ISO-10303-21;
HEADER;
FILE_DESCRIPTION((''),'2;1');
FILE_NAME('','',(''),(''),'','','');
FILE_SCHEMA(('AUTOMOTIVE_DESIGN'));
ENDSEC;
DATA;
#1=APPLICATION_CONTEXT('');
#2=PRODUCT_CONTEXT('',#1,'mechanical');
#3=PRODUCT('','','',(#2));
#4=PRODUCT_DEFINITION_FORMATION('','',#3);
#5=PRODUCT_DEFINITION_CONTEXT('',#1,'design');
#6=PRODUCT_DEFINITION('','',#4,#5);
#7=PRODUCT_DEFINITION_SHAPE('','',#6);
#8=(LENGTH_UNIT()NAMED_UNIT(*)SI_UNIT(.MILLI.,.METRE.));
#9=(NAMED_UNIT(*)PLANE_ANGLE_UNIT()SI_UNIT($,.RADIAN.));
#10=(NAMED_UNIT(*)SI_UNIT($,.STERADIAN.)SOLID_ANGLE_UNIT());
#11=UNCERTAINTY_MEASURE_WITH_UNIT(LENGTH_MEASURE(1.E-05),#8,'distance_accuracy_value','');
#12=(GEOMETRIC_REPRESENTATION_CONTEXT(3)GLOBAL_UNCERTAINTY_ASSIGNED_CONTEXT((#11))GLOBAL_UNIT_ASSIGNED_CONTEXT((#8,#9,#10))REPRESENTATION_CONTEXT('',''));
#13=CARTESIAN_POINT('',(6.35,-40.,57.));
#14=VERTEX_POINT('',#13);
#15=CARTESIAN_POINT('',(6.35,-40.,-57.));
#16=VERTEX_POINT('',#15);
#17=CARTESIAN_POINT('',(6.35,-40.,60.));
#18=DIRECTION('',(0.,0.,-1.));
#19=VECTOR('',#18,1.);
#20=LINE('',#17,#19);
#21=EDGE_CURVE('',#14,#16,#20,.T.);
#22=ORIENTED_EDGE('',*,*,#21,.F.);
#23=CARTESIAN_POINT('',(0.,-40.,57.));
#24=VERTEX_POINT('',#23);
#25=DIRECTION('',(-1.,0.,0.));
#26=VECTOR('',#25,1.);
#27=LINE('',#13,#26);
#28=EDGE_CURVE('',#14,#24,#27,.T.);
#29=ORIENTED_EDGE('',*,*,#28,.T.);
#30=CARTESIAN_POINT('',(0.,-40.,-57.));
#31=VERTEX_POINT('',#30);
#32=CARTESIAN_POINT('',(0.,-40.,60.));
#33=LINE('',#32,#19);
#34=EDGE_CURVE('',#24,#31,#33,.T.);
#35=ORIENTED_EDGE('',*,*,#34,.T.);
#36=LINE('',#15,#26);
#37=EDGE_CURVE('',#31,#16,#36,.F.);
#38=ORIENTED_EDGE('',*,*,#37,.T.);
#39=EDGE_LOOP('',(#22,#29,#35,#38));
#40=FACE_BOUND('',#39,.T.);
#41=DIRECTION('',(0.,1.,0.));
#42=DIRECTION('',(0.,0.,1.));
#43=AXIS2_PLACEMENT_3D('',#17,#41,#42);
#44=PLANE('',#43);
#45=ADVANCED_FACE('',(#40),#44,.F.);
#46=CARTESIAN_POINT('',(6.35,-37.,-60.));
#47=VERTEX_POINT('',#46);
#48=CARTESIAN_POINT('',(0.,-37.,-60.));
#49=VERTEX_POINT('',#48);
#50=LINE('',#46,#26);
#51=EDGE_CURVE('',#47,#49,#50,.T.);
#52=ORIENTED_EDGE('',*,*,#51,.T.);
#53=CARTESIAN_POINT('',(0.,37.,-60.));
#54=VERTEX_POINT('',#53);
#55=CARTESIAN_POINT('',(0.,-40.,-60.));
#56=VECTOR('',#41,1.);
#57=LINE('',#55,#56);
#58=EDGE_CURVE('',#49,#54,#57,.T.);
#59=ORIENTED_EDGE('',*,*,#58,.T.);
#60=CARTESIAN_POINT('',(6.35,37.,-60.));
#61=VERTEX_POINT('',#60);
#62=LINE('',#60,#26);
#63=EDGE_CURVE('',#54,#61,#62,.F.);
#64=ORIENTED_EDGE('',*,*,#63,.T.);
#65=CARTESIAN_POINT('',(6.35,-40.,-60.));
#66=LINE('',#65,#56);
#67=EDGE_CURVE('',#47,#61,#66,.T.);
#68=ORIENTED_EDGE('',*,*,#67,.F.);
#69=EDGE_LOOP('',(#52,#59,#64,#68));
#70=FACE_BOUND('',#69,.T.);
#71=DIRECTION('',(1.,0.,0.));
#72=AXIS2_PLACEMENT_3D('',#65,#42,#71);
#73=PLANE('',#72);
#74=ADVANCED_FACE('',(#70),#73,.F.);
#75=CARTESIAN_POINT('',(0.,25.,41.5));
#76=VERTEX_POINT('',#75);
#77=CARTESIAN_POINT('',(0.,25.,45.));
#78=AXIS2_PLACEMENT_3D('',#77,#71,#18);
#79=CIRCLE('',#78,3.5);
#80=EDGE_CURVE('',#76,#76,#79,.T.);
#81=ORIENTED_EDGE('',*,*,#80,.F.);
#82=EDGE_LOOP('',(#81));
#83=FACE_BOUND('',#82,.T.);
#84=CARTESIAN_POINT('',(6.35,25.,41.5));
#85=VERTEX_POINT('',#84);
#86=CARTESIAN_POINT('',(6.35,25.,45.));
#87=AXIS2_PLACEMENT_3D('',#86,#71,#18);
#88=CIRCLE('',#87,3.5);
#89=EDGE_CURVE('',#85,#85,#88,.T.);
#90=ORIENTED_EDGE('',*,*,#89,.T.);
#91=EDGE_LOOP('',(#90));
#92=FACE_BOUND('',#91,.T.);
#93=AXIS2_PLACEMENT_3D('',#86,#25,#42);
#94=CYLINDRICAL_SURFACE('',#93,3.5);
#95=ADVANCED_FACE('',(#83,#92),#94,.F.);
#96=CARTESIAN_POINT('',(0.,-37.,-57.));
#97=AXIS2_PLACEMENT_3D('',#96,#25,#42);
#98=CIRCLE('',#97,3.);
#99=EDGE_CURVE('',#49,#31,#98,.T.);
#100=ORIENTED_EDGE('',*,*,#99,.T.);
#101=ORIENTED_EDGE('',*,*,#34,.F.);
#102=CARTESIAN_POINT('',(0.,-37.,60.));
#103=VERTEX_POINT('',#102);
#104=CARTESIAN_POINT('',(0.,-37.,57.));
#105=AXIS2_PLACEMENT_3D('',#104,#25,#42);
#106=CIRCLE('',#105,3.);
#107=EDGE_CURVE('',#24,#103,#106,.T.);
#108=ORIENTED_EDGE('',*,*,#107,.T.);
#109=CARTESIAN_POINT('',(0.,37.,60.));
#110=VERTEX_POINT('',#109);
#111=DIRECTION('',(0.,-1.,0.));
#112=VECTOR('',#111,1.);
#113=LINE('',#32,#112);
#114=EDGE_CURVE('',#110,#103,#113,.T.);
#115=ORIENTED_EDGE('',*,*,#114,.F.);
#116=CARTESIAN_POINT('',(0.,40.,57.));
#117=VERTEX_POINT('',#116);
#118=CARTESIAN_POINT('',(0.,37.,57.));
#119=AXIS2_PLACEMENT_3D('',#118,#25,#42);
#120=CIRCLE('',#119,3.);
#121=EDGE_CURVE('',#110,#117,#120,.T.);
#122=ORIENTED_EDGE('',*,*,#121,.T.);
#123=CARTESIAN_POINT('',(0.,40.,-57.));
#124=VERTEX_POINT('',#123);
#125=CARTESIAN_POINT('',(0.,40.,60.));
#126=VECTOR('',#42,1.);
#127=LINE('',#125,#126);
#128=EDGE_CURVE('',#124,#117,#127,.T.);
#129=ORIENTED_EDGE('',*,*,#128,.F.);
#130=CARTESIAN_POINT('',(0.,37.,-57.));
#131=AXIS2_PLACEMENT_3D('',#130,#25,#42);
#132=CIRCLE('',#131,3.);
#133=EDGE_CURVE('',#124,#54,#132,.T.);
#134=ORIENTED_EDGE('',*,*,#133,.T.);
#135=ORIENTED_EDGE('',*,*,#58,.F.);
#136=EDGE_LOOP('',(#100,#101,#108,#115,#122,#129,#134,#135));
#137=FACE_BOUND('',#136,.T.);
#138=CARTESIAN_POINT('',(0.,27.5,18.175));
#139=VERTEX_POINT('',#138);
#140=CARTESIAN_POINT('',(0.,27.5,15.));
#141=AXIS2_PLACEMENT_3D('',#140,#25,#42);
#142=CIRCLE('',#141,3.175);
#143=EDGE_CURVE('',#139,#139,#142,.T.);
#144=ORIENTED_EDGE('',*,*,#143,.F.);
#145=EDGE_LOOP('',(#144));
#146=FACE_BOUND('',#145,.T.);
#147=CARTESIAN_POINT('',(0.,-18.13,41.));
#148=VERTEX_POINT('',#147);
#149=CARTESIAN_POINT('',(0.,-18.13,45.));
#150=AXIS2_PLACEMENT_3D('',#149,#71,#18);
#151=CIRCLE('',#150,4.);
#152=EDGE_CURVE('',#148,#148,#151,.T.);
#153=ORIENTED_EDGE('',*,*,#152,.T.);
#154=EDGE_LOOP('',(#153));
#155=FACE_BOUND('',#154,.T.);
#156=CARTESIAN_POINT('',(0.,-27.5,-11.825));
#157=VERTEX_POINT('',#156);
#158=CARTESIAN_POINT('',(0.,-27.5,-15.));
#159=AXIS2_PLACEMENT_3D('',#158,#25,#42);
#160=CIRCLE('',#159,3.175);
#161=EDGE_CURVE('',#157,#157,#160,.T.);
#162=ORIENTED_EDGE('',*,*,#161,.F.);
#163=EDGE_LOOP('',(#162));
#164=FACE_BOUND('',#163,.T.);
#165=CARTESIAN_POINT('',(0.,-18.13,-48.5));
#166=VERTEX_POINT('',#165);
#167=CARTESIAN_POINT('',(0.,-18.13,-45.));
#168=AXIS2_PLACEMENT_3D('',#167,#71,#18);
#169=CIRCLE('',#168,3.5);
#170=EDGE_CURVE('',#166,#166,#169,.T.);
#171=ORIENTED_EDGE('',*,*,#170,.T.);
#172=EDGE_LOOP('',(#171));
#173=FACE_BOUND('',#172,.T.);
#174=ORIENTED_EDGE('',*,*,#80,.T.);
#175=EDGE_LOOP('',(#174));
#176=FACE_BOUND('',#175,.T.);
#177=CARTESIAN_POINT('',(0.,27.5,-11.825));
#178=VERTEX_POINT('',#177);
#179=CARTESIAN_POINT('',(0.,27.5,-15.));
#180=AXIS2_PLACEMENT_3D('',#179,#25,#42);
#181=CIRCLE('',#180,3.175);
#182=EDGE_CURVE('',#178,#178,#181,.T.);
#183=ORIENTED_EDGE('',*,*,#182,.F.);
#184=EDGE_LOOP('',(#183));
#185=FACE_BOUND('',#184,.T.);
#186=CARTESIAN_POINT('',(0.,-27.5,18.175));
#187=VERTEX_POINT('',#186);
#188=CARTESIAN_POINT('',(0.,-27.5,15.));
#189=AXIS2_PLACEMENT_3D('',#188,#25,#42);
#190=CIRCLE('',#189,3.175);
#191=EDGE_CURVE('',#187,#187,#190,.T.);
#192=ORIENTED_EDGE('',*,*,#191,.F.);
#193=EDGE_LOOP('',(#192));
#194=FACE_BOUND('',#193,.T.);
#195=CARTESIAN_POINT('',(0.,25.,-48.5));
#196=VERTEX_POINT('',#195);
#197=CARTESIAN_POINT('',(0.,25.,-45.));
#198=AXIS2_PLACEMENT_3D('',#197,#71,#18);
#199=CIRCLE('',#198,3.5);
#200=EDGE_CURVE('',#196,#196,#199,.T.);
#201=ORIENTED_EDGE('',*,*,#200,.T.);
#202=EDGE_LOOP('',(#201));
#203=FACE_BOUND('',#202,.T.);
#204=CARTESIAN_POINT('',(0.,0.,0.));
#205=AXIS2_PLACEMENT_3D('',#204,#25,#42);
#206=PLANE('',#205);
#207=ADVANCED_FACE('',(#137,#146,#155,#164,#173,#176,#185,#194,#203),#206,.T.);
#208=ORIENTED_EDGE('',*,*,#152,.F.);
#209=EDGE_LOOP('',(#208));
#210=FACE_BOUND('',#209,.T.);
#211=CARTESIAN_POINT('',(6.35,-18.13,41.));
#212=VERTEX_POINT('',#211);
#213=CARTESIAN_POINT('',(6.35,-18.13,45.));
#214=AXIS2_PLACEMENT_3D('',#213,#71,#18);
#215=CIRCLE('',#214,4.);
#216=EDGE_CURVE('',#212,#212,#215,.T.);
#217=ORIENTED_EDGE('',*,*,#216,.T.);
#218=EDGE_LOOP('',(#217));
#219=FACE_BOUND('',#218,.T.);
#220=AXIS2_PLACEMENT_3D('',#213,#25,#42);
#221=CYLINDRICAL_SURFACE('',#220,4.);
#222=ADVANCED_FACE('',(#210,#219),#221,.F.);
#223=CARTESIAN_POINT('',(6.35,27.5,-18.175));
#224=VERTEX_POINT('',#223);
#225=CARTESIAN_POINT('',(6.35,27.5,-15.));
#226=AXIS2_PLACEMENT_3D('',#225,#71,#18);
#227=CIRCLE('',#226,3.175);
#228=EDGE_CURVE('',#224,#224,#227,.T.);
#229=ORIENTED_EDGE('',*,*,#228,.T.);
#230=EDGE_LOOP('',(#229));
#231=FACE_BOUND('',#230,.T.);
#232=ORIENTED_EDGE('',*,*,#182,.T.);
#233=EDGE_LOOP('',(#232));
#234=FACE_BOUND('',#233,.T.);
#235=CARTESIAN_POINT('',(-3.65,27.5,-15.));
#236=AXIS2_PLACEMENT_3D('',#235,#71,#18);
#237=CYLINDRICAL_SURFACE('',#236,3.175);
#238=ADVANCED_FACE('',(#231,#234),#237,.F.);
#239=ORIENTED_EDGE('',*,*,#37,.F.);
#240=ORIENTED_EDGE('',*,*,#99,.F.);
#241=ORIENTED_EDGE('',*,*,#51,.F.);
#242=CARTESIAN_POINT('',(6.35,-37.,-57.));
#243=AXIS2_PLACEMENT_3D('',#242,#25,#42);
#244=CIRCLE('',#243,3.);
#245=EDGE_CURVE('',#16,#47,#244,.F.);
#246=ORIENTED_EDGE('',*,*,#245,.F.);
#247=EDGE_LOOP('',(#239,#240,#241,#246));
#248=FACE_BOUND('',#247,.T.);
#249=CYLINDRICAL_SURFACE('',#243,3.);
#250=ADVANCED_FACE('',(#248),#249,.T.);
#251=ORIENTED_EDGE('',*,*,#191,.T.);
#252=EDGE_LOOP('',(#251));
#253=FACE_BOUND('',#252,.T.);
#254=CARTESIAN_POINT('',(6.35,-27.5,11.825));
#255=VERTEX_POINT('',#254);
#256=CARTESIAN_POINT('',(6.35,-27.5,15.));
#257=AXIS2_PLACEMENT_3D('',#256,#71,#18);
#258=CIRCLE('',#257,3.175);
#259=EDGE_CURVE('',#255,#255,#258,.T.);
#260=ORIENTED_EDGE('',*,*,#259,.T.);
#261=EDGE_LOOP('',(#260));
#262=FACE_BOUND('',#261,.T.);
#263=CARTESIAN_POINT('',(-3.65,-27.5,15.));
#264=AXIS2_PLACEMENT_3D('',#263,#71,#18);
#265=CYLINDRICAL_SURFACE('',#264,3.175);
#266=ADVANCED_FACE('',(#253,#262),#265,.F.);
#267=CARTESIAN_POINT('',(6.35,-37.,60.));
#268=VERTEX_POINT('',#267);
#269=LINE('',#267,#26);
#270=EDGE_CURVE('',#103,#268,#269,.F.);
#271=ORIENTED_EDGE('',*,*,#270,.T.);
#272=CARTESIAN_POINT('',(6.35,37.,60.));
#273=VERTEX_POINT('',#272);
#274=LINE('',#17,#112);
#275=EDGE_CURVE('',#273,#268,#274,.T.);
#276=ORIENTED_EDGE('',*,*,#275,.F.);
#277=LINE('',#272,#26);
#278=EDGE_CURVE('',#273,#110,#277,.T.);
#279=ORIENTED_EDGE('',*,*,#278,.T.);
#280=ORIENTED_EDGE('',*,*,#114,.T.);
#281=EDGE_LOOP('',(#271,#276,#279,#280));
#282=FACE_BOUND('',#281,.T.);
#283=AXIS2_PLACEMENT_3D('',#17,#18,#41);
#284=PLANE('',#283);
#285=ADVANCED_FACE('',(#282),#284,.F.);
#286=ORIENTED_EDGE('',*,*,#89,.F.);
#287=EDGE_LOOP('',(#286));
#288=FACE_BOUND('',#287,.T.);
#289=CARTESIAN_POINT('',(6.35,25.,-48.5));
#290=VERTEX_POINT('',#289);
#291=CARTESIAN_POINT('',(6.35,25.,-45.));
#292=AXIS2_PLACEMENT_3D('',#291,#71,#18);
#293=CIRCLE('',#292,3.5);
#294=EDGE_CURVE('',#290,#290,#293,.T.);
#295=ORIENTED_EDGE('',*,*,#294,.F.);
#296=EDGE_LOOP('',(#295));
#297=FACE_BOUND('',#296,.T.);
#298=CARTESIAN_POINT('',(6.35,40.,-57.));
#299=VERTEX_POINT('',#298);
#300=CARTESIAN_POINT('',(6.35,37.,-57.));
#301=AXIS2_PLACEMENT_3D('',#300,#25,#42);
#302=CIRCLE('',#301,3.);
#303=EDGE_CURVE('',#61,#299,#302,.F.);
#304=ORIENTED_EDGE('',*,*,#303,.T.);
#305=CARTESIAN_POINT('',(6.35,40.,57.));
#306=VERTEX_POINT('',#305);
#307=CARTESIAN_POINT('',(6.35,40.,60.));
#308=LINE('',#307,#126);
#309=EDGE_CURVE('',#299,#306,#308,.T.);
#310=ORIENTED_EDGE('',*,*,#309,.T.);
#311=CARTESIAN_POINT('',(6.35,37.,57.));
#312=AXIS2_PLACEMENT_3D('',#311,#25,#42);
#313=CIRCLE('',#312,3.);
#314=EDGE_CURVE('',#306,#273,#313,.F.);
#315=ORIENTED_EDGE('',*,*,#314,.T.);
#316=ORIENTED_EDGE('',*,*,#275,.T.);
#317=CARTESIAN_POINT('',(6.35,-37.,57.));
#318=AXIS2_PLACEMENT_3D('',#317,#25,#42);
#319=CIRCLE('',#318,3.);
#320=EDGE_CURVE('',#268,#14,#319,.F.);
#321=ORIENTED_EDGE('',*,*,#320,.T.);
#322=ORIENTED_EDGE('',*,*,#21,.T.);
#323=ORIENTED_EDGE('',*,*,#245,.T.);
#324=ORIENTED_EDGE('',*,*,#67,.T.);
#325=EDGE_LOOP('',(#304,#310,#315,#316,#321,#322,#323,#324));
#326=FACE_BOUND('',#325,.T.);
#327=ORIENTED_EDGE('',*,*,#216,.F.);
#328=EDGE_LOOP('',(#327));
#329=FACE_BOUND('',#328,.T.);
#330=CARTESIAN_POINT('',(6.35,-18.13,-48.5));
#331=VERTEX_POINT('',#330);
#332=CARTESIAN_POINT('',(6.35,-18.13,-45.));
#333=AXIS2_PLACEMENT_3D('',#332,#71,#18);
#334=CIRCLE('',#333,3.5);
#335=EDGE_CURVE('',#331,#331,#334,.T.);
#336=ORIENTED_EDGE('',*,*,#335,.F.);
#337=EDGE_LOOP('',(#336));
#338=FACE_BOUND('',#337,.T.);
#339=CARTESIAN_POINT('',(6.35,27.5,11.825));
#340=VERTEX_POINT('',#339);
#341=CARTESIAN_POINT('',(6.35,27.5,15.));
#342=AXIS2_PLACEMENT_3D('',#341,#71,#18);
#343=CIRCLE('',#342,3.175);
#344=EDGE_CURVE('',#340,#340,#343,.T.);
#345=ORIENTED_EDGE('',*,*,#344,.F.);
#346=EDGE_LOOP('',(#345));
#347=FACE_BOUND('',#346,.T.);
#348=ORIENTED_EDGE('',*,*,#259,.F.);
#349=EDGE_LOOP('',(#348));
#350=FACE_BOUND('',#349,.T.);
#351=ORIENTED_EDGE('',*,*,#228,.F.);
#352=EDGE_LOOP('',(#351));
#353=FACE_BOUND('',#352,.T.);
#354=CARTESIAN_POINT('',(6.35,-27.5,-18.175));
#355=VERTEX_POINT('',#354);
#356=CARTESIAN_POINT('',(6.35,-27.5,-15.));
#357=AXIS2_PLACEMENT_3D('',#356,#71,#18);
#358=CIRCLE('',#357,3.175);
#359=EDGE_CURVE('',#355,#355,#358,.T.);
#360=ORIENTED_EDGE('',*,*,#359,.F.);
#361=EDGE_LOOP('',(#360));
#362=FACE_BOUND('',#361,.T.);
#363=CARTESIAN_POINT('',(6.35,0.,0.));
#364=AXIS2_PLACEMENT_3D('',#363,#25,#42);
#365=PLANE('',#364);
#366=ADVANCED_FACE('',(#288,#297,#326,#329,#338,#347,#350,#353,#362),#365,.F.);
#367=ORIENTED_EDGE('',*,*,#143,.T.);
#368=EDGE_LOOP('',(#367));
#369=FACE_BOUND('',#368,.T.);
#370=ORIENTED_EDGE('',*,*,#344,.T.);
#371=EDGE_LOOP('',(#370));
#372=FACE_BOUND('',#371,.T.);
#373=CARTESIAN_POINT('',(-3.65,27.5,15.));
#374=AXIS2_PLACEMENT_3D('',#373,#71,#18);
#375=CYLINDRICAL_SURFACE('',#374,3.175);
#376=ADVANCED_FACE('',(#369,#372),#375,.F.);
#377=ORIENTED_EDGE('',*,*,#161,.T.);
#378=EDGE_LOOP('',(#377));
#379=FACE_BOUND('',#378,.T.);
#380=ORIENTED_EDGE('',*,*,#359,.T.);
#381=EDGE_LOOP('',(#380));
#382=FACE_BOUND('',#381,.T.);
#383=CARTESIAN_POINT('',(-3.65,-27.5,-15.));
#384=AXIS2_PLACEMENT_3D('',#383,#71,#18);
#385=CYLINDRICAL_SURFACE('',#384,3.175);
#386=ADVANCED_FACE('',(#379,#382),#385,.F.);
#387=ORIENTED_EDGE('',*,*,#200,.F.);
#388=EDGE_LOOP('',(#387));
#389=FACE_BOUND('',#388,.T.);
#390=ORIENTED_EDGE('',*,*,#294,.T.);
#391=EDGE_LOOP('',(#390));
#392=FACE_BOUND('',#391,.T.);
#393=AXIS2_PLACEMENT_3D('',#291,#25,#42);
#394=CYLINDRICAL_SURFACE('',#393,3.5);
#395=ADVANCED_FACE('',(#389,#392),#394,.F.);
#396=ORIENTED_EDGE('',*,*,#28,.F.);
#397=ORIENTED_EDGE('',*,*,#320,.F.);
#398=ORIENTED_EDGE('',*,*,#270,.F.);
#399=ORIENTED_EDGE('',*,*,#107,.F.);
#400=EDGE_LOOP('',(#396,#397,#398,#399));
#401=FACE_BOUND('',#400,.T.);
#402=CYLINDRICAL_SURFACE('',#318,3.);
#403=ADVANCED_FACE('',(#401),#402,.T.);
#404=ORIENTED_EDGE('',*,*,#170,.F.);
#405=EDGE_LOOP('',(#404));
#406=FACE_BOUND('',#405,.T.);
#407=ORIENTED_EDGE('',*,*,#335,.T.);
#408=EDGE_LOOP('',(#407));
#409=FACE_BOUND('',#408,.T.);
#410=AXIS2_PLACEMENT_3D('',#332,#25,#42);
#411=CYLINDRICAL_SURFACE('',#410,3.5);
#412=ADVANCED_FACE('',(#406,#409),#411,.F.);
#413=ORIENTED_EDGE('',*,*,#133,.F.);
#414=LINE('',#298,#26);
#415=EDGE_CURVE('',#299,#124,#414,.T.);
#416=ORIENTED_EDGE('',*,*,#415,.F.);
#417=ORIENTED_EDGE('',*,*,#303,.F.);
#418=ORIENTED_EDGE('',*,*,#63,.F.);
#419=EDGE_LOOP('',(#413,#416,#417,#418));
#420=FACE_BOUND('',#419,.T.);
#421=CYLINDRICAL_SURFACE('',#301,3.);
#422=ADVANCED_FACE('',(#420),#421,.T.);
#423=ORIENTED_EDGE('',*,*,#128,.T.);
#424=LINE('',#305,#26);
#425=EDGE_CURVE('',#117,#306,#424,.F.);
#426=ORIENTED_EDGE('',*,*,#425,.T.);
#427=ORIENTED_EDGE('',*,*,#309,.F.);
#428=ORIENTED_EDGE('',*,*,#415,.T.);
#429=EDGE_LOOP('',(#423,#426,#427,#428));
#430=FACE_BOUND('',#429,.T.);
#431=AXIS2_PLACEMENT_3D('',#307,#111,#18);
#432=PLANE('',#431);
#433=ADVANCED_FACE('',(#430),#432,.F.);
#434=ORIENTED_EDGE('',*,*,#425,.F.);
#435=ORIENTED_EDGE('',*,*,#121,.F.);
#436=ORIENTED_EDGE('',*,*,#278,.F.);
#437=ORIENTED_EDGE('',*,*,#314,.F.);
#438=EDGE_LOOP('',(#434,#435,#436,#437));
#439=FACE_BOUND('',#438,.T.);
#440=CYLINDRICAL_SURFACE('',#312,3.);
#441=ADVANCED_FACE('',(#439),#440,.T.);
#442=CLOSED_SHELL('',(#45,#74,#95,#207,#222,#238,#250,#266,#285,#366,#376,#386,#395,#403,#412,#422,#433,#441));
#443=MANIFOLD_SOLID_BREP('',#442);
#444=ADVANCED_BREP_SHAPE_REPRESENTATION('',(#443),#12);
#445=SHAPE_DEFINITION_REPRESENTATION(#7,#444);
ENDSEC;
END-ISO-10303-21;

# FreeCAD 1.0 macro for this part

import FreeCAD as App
import Part
import Sketcher

V = App.Vector
Q = App.Units.Quantity


def edges_at(feature, points):
    """Names of the edges that pass closest to the given points."""
    edges = feature.Shape.Edges
    near = lambda p: min(range(len(edges)), key=lambda i: edges[i].distToShape(Part.Vertex(*p))[0])
    return sorted({f"Edge{near(p) + 1}" for p in points})

doc = App.newDocument("Part")
params = doc.addObject("Spreadsheet::Sheet", "Params")
for row, (alias, value) in enumerate([
    ("sketch1_diameter", "8 mm"),
    ("sketch1_diameter2", "7 mm"),
    ("sketch1_width", "80 mm"),
    ("sketch1_height", "120 mm"),
    ("pad1_length", "6.35 mm"),
    ("fillet_radius", "3 mm"),
    ("sketch2_diameter", "6.35 mm"),
    ("pocket1_length", "10 mm"),
], start=1):
    params.set(f"A{row}", alias)
    params.set(f"B{row}", "=" + value)
    params.setAlias(f"B{row}", alias)

body = doc.addObject("PartDesign::Body", "Body")

# Sketch on YZ plane
sketch1 = body.newObject("Sketcher::SketchObject", "Sketch")
sketch1.AttachmentSupport = (doc.getObject("YZ_Plane"), [""])
sketch1.MapMode = "FlatFace"
sketch1.addGeometry(Part.LineSegment(V(40, 60, 0), V(-40, 60, 0)), False)
sketch1.addGeometry(Part.LineSegment(V(-40, 60, 0), V(-40, -60, 0)), False)
sketch1.addGeometry(Part.LineSegment(V(-40, -60, 0), V(40, -60, 0)), False)
sketch1.addGeometry(Part.LineSegment(V(40, -60, 0), V(40, 60, 0)), False)
sketch1.addGeometry(Part.Circle(V(-18.1, 45, 0), V(0, 0, 1), 4), False)
sketch1.addGeometry(Part.Circle(V(-18.1, -45, 0), V(0, 0, 1), 3.5), False)
sketch1.addGeometry(Part.Circle(V(25, 45, 0), V(0, 0, 1), 3.5), False)
sketch1.addGeometry(Part.Circle(V(25, -45, 0), V(0, 0, 1), 3.5), False)
sketch1.addConstraint(Sketcher.Constraint("Coincident", 0, 2, 1, 1))
sketch1.addConstraint(Sketcher.Constraint("Coincident", 1, 2, 2, 1))
sketch1.addConstraint(Sketcher.Constraint("Coincident", 2, 2, 3, 1))
sketch1.addConstraint(Sketcher.Constraint("Coincident", 3, 2, 0, 1))
sketch1.addConstraint(Sketcher.Constraint("Horizontal", 0))
sketch1.addConstraint(Sketcher.Constraint("Vertical", 1))
sketch1.addConstraint(Sketcher.Constraint("Horizontal", 2))
sketch1.addConstraint(Sketcher.Constraint("Vertical", 3))
sketch1.addConstraint(Sketcher.Constraint("Equal", 5, 6))
sketch1.addConstraint(Sketcher.Constraint("Equal", 6, 7))
sketch1.addConstraint(Sketcher.Constraint("Symmetric", 0, 2, 2, 2, -1, 1))
sketch1.addConstraint(Sketcher.Constraint("Symmetric", 4, 3, 5, 3, -1))
sketch1.addConstraint(Sketcher.Constraint("Symmetric", 6, 3, 7, 3, -1))
sketch1.addConstraint(Sketcher.Constraint("Horizontal", 4, 3, 6, 3))
sketch1.addConstraint(Sketcher.Constraint("Diameter", 4, Q("8 mm")))
sketch1.addConstraint(Sketcher.Constraint("Diameter", 5, Q("7 mm")))
sketch1.addConstraint(Sketcher.Constraint("DistanceX", 0, 2, 0, 1, Q("80 mm")))
sketch1.addConstraint(Sketcher.Constraint("DistanceY", 1, 2, 1, 1, Q("120 mm")))
sketch1.addConstraint(Sketcher.Constraint("DistanceY", -1, 1, 4, 3, Q("45 mm")))
sketch1.addConstraint(Sketcher.Constraint("DistanceX", -1, 1, 6, 3, Q("25 mm")))
sketch1.addConstraint(Sketcher.Constraint("DistanceX", 4, 3, -1, 1, Q("18.13 mm")))
sketch1.setExpression("Constraints[14]", "Params.sketch1_diameter")
sketch1.setExpression("Constraints[15]", "Params.sketch1_diameter2")
sketch1.setExpression("Constraints[16]", "Params.sketch1_width")
sketch1.setExpression("Constraints[17]", "Params.sketch1_height")
pad1 = body.newObject("PartDesign::Pad", "Pad")
pad1.Profile = sketch1
pad1.setExpression("Length", "Params.pad1_length")
doc.recompute()

fillet = body.newObject("PartDesign::Fillet", "Fillet")
fillet.Base = (pad1, edges_at(pad1, [
    (3.175, -40, -60),
    (3.175, -40, 60),
    (3.175, 40, 60),
    (3.175, 40, -60),
]))
fillet.setExpression("Radius", "Params.fillet_radius")

# Sketch on YZ plane
sketch2 = body.newObject("Sketcher::SketchObject", "Sketch001")
sketch2.AttachmentSupport = (doc.getObject("YZ_Plane"), [""])
sketch2.MapMode = "FlatFace"
sketch2.AttachmentOffset = App.Placement(V(0, 0, 6.35), App.Rotation())
sketch2.addGeometry(Part.Circle(V(27.5, 15, 0), V(0, 0, 1), 3.2), False)
sketch2.addGeometry(Part.Circle(V(27.5, -15, 0), V(0, 0, 1), 3.2), False)
sketch2.addGeometry(Part.Circle(V(-27.5, -15, 0), V(0, 0, 1), 3.2), False)
sketch2.addGeometry(Part.Circle(V(-27.5, 15, 0), V(0, 0, 1), 3.2), False)
sketch2.addConstraint(Sketcher.Constraint("Equal", 0, 1))
sketch2.addConstraint(Sketcher.Constraint("Equal", 1, 2))
sketch2.addConstraint(Sketcher.Constraint("Equal", 2, 3))
sketch2.addConstraint(Sketcher.Constraint("Symmetric", 0, 3, 2, 3, -1, 1))
sketch2.addConstraint(Sketcher.Constraint("Symmetric", 1, 3, 3, 3, -1, 1))
sketch2.addConstraint(Sketcher.Constraint("Symmetric", 1, 3, 2, 3, -2))
sketch2.addConstraint(Sketcher.Constraint("Diameter", 0, Q("6.35 mm")))
sketch2.addConstraint(Sketcher.Constraint("DistanceY", -1, 1, 0, 3, Q("15 mm")))
sketch2.addConstraint(Sketcher.Constraint("DistanceX", 2, 3, 1, 3, Q("55 mm")))
sketch2.setExpression("Constraints[6]", "Params.sketch2_diameter")
pocket1 = body.newObject("PartDesign::Pocket", "Pocket")
pocket1.Profile = sketch2
pocket1.setExpression("Length", "Params.pocket1_length")

doc.recompute()
